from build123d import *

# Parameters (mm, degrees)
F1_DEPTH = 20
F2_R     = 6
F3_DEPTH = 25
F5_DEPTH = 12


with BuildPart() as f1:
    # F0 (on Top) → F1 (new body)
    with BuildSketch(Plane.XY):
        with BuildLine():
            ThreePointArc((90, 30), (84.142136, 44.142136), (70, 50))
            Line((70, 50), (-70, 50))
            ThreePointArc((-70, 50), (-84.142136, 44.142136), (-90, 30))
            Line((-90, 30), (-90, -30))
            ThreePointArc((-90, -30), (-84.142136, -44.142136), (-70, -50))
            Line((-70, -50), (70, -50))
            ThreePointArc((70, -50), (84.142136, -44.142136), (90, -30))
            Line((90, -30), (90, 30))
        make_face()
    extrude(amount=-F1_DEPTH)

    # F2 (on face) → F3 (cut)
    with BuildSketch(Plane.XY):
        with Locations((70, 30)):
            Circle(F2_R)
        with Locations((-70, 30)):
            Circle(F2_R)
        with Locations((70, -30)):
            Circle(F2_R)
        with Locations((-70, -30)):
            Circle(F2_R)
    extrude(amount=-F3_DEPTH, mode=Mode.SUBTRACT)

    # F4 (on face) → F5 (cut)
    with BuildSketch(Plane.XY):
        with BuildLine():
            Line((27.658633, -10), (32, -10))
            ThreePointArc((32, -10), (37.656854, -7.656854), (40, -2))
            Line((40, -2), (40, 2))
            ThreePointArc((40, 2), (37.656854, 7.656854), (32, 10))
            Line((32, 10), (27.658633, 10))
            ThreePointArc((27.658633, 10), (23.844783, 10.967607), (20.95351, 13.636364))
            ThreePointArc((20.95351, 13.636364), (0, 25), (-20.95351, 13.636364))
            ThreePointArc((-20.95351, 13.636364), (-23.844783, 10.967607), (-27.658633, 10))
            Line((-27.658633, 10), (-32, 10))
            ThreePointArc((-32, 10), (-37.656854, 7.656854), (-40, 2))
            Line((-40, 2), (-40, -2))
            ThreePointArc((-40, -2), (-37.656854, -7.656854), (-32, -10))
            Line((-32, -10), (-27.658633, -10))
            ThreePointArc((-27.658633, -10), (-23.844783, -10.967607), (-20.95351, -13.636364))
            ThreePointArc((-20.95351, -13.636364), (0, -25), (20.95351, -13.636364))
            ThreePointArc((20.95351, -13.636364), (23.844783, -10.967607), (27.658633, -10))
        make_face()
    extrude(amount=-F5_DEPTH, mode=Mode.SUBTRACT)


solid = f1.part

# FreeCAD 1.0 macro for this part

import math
import FreeCAD as App
import Part
import Sketcher

V = App.Vector
Q = App.Units.Quantity

doc = App.newDocument("Part")
params = doc.addObject("Spreadsheet::Sheet", "Params")
for row, (alias, value) in enumerate([
    ("sketch1_radius", "19.999999 mm"),
    ("sketch1_width", "140 mm"),
    ("sketch1_height", "60 mm"),
    ("pad1_length", "20 mm"),
    ("sketch2_diameter", "12 mm"),
    ("pocket1_length", "25 mm"),
    ("sketch3_radius", "8.000001 mm"),
    ("sketch3_radius2", "25 mm"),
    ("sketch3_height", "4 mm"),
    ("pocket2_length", "12 mm"),
], start=1):
    params.set(f"A{row}", alias)
    params.set(f"B{row}", "=" + value)
    params.setAlias(f"B{row}", alias)

body = doc.addObject("PartDesign::Body", "Body")

sketch1 = body.newObject("Sketcher::SketchObject", "Sketch")
sketch1.AttachmentSupport = (doc.getObject("XY_Plane"), [""])
sketch1.MapMode = "FlatFace"
sketch1.addGeometry(Part.ArcOfCircle(Part.Circle(V(70.000001, 30.000001, 0), V(0, 0, 1), 19.999999), math.radians(-0.000004), math.radians(90.000004)), False)
sketch1.addGeometry(Part.LineSegment(V(70, 50, 0), V(-70, 50, 0)), False)
sketch1.addGeometry(Part.ArcOfCircle(Part.Circle(V(-70.000001, 30.000001, 0), V(0, 0, 1), 19.999999), math.radians(89.999996), math.radians(180.000004)), False)
sketch1.addGeometry(Part.LineSegment(V(-90, 30, 0), V(-90, -30, 0)), False)
sketch1.addGeometry(Part.ArcOfCircle(Part.Circle(V(-70.000001, -30.000001, 0), V(0, 0, 1), 19.999999), math.radians(179.999996), math.radians(270.000004)), False)
sketch1.addGeometry(Part.LineSegment(V(-70, -50, 0), V(70, -50, 0)), False)
sketch1.addGeometry(Part.ArcOfCircle(Part.Circle(V(70.000001, -30.000001, 0), V(0, 0, 1), 19.999999), math.radians(-90.000004), math.radians(0.000004)), False)
sketch1.addGeometry(Part.LineSegment(V(90, -30, 0), V(90, 30, 0)), False)
sketch1.addConstraint(Sketcher.Constraint("Tangent", 0, 2, 1, 1))
sketch1.addConstraint(Sketcher.Constraint("Tangent", 1, 2, 2, 1))
sketch1.addConstraint(Sketcher.Constraint("Tangent", 2, 2, 3, 1))
sketch1.addConstraint(Sketcher.Constraint("Tangent", 3, 2, 4, 1))
sketch1.addConstraint(Sketcher.Constraint("Tangent", 4, 2, 5, 1))
sketch1.addConstraint(Sketcher.Constraint("Tangent", 5, 2, 6, 1))
sketch1.addConstraint(Sketcher.Constraint("Tangent", 6, 2, 7, 1))
sketch1.addConstraint(Sketcher.Constraint("Tangent", 7, 2, 0, 1))
sketch1.addConstraint(Sketcher.Constraint("Horizontal", 1))
sketch1.addConstraint(Sketcher.Constraint("Vertical", 3))
sketch1.addConstraint(Sketcher.Constraint("Horizontal", 5))
sketch1.addConstraint(Sketcher.Constraint("Vertical", 7))
sketch1.addConstraint(Sketcher.Constraint("Equal", 0, 2))
sketch1.addConstraint(Sketcher.Constraint("Equal", 2, 4))
sketch1.addConstraint(Sketcher.Constraint("Equal", 4, 6))
sketch1.addConstraint(Sketcher.Constraint("Symmetric", 0, 3, 4, 3, -1, 1))
sketch1.addConstraint(Sketcher.Constraint("Radius", 0, Q("19.999999 mm")))
sketch1.addConstraint(Sketcher.Constraint("DistanceX", 1, 2, 1, 1, Q("140 mm")))
sketch1.addConstraint(Sketcher.Constraint("DistanceY", 3, 2, 3, 1, Q("60 mm")))
sketch1.setExpression("Constraints[16]", "Params.sketch1_radius")
sketch1.setExpression("Constraints[17]", "Params.sketch1_width")
sketch1.setExpression("Constraints[18]", "Params.sketch1_height")
pad1 = body.newObject("PartDesign::Pad", "Pad")
pad1.Profile = sketch1
pad1.setExpression("Length", "Params.pad1_length")
pad1.Reversed = True

sketch2 = body.newObject("Sketcher::SketchObject", "Sketch001")
sketch2.AttachmentSupport = (doc.getObject("XY_Plane"), [""])
sketch2.MapMode = "FlatFace"
sketch2.addGeometry(Part.Circle(V(70, 30, 0), V(0, 0, 1), 6), False)
sketch2.addGeometry(Part.Circle(V(-70, 30, 0), V(0, 0, 1), 6), False)
sketch2.addGeometry(Part.Circle(V(70, -30, 0), V(0, 0, 1), 6), False)
sketch2.addGeometry(Part.Circle(V(-70, -30, 0), V(0, 0, 1), 6), False)
sketch2.addConstraint(Sketcher.Constraint("Equal", 0, 1))
sketch2.addConstraint(Sketcher.Constraint("Equal", 1, 2))
sketch2.addConstraint(Sketcher.Constraint("Equal", 2, 3))
sketch2.addConstraint(Sketcher.Constraint("Symmetric", 1, 3, 2, 3, -1, 1))
sketch2.addConstraint(Sketcher.Constraint("Symmetric", 0, 3, 3, 3, -1, 1))
sketch2.addConstraint(Sketcher.Constraint("Symmetric", 0, 3, 1, 3, -2))
sketch2.addConstraint(Sketcher.Constraint("Diameter", 0, Q("12 mm")))
sketch2.addConstraint(Sketcher.Constraint("DistanceX", -1, 1, 0, 3, Q("70 mm")))
sketch2.addConstraint(Sketcher.Constraint("DistanceY", -1, 1, 0, 3, Q("30 mm")))
sketch2.setExpression("Constraints[6]", "Params.sketch2_diameter")
pocket1 = body.newObject("PartDesign::Pocket", "Pocket")
pocket1.Profile = sketch2
pocket1.setExpression("Length", "Params.pocket1_length")

sketch3 = body.newObject("Sketcher::SketchObject", "Sketch002")
sketch3.AttachmentSupport = (doc.getObject("XY_Plane"), [""])
sketch3.MapMode = "FlatFace"
sketch3.addGeometry(Part.LineSegment(V(27.658633, -10, 0), V(32, -10, 0)), False)
sketch3.addGeometry(Part.ArcOfCircle(Part.Circle(V(31.999999, -1.999999, 0), V(0, 0, 1), 8.000001), math.radians(-89.999994), math.radians(-0.000006)), False)
sketch3.addGeometry(Part.LineSegment(V(40, -2, 0), V(40, 2, 0)), False)
sketch3.addGeometry(Part.ArcOfCircle(Part.Circle(V(31.999999, 1.999999, 0), V(0, 0, 1), 8.000001), math.radians(0.000006), math.radians(89.999994)), False)
sketch3.addGeometry(Part.LineSegment(V(32, 10, 0), V(27.658633, 10, 0)), False)
sketch3.addGeometry(Part.ArcOfCircle(Part.Circle(V(27.658632, 17.999997, 0), V(0, 0, 1), 7.999997), math.radians(-146.944284), math.radians(-89.999991)), False)
sketch3.addGeometry(Part.ArcOfCircle(Part.Circle(V(0, 0, 0), V(0, 0, 1), 25), math.radians(33.055732), math.radians(146.944268)), False)
sketch3.addGeometry(Part.ArcOfCircle(Part.Circle(V(-27.658632, 17.999997, 0), V(0, 0, 1), 7.999997), math.radians(-90.000009), math.radians(-33.055716)), False)
sketch3.addGeometry(Part.LineSegment(V(-27.658633, 10, 0), V(-32, 10, 0)), False)
sketch3.addGeometry(Part.ArcOfCircle(Part.Circle(V(-31.999999, 1.999999, 0), V(0, 0, 1), 8.000001), math.radians(90.000006), math.radians(179.999994)), False)
sketch3.addGeometry(Part.LineSegment(V(-40, 2, 0), V(-40, -2, 0)), False)
sketch3.addGeometry(Part.ArcOfCircle(Part.Circle(V(-31.999999, -1.999999, 0), V(0, 0, 1), 8.000001), math.radians(-179.999994), math.radians(-90.000006)), False)
sketch3.addGeometry(Part.LineSegment(V(-32, -10, 0), V(-27.658633, -10, 0)), False)
sketch3.addGeometry(Part.ArcOfCircle(Part.Circle(V(-27.658632, -17.999997, 0), V(0, 0, 1), 7.999997), math.radians(33.055716), math.radians(90.000009)), False)
sketch3.addGeometry(Part.ArcOfCircle(Part.Circle(V(0, 0, 0), V(0, 0, 1), 25), math.radians(-146.944268), math.radians(-33.055732)), False)
sketch3.addGeometry(Part.ArcOfCircle(Part.Circle(V(27.658632, -17.999997, 0), V(0, 0, 1), 7.999997), math.radians(89.999991), math.radians(146.944284)), False)
sketch3.addConstraint(Sketcher.Constraint("Tangent", 0, 2, 1, 1))
sketch3.addConstraint(Sketcher.Constraint("Tangent", 1, 2, 2, 1))
sketch3.addConstraint(Sketcher.Constraint("Tangent", 2, 2, 3, 1))
sketch3.addConstraint(Sketcher.Constraint("Tangent", 3, 2, 4, 1))
sketch3.addConstraint(Sketcher.Constraint("Tangent", 4, 2, 5, 2))
sketch3.addConstraint(Sketcher.Constraint("Tangent", 5, 1, 6, 1))
sketch3.addConstraint(Sketcher.Constraint("Tangent", 6, 2, 7, 2))
sketch3.addConstraint(Sketcher.Constraint("Tangent", 7, 1, 8, 1))
sketch3.addConstraint(Sketcher.Constraint("Tangent", 8, 2, 9, 1))
sketch3.addConstraint(Sketcher.Constraint("Tangent", 9, 2, 10, 1))
sketch3.addConstraint(Sketcher.Constraint("Tangent", 10, 2, 11, 1))
sketch3.addConstraint(Sketcher.Constraint("Tangent", 11, 2, 12, 1))
sketch3.addConstraint(Sketcher.Constraint("Tangent", 12, 2, 13, 2))
sketch3.addConstraint(Sketcher.Constraint("Tangent", 13, 1, 14, 1))
sketch3.addConstraint(Sketcher.Constraint("Tangent", 14, 2, 15, 2))
sketch3.addConstraint(Sketcher.Constraint("Tangent", 15, 1, 0, 1))
sketch3.addConstraint(Sketcher.Constraint("Horizontal", 0))
sketch3.addConstraint(Sketcher.Constraint("Vertical", 2))
sketch3.addConstraint(Sketcher.Constraint("Horizontal", 4))
sketch3.addConstraint(Sketcher.Constraint("Horizontal", 8))
sketch3.addConstraint(Sketcher.Constraint("Vertical", 10))
sketch3.addConstraint(Sketcher.Constraint("Horizontal", 12))
sketch3.addConstraint(Sketcher.Constraint("Coincident", 6, 3, -1, 1))
sketch3.addConstraint(Sketcher.Constraint("Coincident", 14, 3, -1, 1))
sketch3.addConstraint(Sketcher.Constraint("Equal", 1, 3))
sketch3.addConstraint(Sketcher.Constraint("Equal", 5, 7))
sketch3.addConstraint(Sketcher.Constraint("Equal", 3, 9))
sketch3.addConstraint(Sketcher.Constraint("Equal", 9, 11))
sketch3.addConstraint(Sketcher.Constraint("Equal", 7, 13))
sketch3.addConstraint(Sketcher.Constraint("Equal", 6, 14))
sketch3.addConstraint(Sketcher.Constraint("Equal", 13, 15))
sketch3.addConstraint(Sketcher.Constraint("Symmetric", 1, 3, 9, 3, -1, 1))
sketch3.addConstraint(Sketcher.Constraint("Horizontal", 5, 3, 7, 3))
sketch3.addConstraint(Sketcher.Constraint("Horizontal", 1, 3, 11, 3))
sketch3.addConstraint(Sketcher.Constraint("Radius", 1, Q("8.000001 mm")))
sketch3.addConstraint(Sketcher.Constraint("Radius", 6, Q("25 mm")))
sketch3.addConstraint(Sketcher.Constraint("DistanceY", 2, 1, 2, 2, Q("4 mm")))
sketch3.addConstraint(Sketcher.Constraint("DistanceX", -1, 1, 1, 3, Q("31.999999 mm")))
sketch3.addConstraint(Sketcher.Constraint("Radius", 5, Q("7.999997 mm")))
sketch3.setExpression("Constraints[34]", "Params.sketch3_radius")
sketch3.setExpression("Constraints[35]", "Params.sketch3_radius2")
sketch3.setExpression("Constraints[36]", "Params.sketch3_height")
pocket2 = body.newObject("PartDesign::Pocket", "Pocket001")
pocket2.Profile = sketch3
pocket2.setExpression("Length", "Params.pocket2_length")

doc.recompute()
